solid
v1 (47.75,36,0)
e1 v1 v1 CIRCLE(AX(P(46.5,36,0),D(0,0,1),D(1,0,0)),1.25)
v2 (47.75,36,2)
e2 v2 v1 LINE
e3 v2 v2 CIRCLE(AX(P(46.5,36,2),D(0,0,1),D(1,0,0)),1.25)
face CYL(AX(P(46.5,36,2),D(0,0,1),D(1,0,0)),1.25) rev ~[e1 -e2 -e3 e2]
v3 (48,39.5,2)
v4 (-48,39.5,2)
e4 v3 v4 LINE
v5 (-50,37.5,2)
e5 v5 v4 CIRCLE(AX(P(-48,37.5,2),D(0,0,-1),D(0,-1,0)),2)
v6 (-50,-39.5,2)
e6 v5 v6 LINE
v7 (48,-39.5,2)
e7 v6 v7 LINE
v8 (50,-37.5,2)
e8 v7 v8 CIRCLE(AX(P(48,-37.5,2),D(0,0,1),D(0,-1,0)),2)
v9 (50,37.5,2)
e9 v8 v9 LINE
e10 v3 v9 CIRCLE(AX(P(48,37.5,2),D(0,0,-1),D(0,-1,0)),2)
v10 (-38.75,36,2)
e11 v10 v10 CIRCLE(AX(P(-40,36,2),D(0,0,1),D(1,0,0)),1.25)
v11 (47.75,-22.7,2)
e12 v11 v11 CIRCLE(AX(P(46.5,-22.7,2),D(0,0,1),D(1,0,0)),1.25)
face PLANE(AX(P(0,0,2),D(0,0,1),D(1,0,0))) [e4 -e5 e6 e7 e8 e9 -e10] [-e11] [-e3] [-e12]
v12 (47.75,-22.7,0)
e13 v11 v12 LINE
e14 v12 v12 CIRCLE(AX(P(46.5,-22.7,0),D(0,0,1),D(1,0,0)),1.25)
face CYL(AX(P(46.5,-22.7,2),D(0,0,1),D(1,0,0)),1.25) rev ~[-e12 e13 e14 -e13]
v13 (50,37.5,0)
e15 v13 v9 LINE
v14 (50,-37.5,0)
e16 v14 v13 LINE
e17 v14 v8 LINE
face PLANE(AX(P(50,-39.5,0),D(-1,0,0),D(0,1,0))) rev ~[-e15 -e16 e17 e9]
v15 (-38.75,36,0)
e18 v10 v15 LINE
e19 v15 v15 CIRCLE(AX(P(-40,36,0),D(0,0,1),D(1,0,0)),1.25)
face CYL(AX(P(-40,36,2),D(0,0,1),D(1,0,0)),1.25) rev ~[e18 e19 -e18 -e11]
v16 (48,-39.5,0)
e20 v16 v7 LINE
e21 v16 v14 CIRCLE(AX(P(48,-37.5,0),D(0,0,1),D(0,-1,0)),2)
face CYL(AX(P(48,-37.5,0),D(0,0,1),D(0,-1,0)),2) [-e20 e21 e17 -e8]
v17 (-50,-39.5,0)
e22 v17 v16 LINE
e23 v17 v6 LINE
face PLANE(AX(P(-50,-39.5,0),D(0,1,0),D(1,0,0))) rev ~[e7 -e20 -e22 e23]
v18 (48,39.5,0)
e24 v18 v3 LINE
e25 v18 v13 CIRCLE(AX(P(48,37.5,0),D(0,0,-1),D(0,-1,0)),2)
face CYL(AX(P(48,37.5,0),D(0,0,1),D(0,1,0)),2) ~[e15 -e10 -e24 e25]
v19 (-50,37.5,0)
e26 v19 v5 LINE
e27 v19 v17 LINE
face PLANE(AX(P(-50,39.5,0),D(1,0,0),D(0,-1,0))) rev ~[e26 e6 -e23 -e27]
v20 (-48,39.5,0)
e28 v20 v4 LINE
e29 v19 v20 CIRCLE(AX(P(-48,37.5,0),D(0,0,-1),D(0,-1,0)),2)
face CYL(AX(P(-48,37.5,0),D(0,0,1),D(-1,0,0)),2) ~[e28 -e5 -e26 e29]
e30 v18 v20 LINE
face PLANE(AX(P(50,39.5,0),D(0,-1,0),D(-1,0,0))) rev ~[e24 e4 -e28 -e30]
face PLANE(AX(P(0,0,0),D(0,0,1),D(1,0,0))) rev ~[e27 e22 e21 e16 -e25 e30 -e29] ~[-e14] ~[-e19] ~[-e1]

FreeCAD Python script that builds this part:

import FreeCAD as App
import Part
import Sketcher

V = App.Vector


def edges_at(feature, points):
    """Names of the edges that pass closest to the given points."""
    edges = feature.Shape.Edges
    near = lambda p: min(range(len(edges)), key=lambda i: edges[i].distToShape(Part.Vertex(*p))[0])
    return sorted({f"Edge{near(p) + 1}" for p in points})

doc = App.newDocument("Part")
body = doc.addObject("PartDesign::Body", "Body")

sketch1 = doc.addObject("Sketcher::SketchObject", "Sketch")
body.addObject(sketch1)
sketch1.AttachmentSupport = (doc.XY_Plane, [""])
sketch1.MapMode = "FlatFace"
sketch1.addGeometry([
    Part.LineSegment(V(-50, 39.5, 0), V(-50, -39.5, 0)),
    Part.LineSegment(V(-50, -39.5, 0), V(50, -39.5, 0)),
    Part.LineSegment(V(50, -39.5, 0), V(50, 39.5, 0)),
    Part.LineSegment(V(50, 39.5, 0), V(-50, 39.5, 0)),
], False)
sketch1.addConstraint([
    Sketcher.Constraint("Coincident", 0, 2, 1, 1),
    Sketcher.Constraint("Coincident", 1, 2, 2, 1),
    Sketcher.Constraint("Coincident", 2, 2, 3, 1),
    Sketcher.Constraint("Coincident", 3, 2, 0, 1),
    Sketcher.Constraint("Vertical", 0),
    Sketcher.Constraint("Horizontal", 1),
    Sketcher.Constraint("Vertical", 2),
    Sketcher.Constraint("Horizontal", 3),
    Sketcher.Constraint("Symmetric", 0, 2, 2, 2, -1, 1),
    Sketcher.Constraint("DistanceX", 1, 1, 1, 2, 100.0),
    Sketcher.Constraint("DistanceY", 0, 2, 0, 1, 79.0),
])
pad1 = doc.addObject("PartDesign::Pad", "Pad")
body.addObject(pad1)
pad1.Profile = sketch1
pad1.Length = 2

sketch2 = doc.addObject("Sketcher::SketchObject", "Sketch001")
body.addObject(sketch2)
sketch2.AttachmentSupport = (doc.XY_Plane, [""])
sketch2.MapMode = "FlatFace"
sketch2.AttachmentOffset = App.Placement(V(0, 0, 2), App.Rotation())
sketch2.addGeometry([
    Part.Circle(V(-40, 36, 0), V(0, 0, 1), 1.25),
    Part.Circle(V(46.5, 36, 0), V(0, 0, 1), 1.25),
    Part.Circle(V(46.5, -22.7, 0), V(0, 0, 1), 1.25),
], False)
sketch2.addConstraint([
    Sketcher.Constraint("Equal", 0, 1),
    Sketcher.Constraint("Equal", 1, 2),
    Sketcher.Constraint("Horizontal", 0, 3, 1, 3),
    Sketcher.Constraint("Vertical", 1, 3, 2, 3),
    Sketcher.Constraint("Diameter", 0, 2.5),
    Sketcher.Constraint("DistanceX", 0, 3, -1, 1, 40.0),
    Sketcher.Constraint("DistanceY", -1, 1, 0, 3, 36.0),
    Sketcher.Constraint("DistanceX", -1, 1, 1, 3, 46.5),
    Sketcher.Constraint("DistanceY", 2, 3, -1, 1, 22.7),
])
pocket1 = doc.addObject("PartDesign::Pocket", "Pocket")
body.addObject(pocket1)
pocket1.Profile = sketch2
pocket1.Length = 2
doc.recompute()

fillet = doc.addObject("PartDesign::Fillet", "Fillet")
body.addObject(fillet)
fillet.Base = (pocket1, edges_at(pocket1, [(50, -39.5, 1), (50, 39.5, 1), (-50, 39.5, 1)]))
fillet.Radius = 2

doc.recompute()
